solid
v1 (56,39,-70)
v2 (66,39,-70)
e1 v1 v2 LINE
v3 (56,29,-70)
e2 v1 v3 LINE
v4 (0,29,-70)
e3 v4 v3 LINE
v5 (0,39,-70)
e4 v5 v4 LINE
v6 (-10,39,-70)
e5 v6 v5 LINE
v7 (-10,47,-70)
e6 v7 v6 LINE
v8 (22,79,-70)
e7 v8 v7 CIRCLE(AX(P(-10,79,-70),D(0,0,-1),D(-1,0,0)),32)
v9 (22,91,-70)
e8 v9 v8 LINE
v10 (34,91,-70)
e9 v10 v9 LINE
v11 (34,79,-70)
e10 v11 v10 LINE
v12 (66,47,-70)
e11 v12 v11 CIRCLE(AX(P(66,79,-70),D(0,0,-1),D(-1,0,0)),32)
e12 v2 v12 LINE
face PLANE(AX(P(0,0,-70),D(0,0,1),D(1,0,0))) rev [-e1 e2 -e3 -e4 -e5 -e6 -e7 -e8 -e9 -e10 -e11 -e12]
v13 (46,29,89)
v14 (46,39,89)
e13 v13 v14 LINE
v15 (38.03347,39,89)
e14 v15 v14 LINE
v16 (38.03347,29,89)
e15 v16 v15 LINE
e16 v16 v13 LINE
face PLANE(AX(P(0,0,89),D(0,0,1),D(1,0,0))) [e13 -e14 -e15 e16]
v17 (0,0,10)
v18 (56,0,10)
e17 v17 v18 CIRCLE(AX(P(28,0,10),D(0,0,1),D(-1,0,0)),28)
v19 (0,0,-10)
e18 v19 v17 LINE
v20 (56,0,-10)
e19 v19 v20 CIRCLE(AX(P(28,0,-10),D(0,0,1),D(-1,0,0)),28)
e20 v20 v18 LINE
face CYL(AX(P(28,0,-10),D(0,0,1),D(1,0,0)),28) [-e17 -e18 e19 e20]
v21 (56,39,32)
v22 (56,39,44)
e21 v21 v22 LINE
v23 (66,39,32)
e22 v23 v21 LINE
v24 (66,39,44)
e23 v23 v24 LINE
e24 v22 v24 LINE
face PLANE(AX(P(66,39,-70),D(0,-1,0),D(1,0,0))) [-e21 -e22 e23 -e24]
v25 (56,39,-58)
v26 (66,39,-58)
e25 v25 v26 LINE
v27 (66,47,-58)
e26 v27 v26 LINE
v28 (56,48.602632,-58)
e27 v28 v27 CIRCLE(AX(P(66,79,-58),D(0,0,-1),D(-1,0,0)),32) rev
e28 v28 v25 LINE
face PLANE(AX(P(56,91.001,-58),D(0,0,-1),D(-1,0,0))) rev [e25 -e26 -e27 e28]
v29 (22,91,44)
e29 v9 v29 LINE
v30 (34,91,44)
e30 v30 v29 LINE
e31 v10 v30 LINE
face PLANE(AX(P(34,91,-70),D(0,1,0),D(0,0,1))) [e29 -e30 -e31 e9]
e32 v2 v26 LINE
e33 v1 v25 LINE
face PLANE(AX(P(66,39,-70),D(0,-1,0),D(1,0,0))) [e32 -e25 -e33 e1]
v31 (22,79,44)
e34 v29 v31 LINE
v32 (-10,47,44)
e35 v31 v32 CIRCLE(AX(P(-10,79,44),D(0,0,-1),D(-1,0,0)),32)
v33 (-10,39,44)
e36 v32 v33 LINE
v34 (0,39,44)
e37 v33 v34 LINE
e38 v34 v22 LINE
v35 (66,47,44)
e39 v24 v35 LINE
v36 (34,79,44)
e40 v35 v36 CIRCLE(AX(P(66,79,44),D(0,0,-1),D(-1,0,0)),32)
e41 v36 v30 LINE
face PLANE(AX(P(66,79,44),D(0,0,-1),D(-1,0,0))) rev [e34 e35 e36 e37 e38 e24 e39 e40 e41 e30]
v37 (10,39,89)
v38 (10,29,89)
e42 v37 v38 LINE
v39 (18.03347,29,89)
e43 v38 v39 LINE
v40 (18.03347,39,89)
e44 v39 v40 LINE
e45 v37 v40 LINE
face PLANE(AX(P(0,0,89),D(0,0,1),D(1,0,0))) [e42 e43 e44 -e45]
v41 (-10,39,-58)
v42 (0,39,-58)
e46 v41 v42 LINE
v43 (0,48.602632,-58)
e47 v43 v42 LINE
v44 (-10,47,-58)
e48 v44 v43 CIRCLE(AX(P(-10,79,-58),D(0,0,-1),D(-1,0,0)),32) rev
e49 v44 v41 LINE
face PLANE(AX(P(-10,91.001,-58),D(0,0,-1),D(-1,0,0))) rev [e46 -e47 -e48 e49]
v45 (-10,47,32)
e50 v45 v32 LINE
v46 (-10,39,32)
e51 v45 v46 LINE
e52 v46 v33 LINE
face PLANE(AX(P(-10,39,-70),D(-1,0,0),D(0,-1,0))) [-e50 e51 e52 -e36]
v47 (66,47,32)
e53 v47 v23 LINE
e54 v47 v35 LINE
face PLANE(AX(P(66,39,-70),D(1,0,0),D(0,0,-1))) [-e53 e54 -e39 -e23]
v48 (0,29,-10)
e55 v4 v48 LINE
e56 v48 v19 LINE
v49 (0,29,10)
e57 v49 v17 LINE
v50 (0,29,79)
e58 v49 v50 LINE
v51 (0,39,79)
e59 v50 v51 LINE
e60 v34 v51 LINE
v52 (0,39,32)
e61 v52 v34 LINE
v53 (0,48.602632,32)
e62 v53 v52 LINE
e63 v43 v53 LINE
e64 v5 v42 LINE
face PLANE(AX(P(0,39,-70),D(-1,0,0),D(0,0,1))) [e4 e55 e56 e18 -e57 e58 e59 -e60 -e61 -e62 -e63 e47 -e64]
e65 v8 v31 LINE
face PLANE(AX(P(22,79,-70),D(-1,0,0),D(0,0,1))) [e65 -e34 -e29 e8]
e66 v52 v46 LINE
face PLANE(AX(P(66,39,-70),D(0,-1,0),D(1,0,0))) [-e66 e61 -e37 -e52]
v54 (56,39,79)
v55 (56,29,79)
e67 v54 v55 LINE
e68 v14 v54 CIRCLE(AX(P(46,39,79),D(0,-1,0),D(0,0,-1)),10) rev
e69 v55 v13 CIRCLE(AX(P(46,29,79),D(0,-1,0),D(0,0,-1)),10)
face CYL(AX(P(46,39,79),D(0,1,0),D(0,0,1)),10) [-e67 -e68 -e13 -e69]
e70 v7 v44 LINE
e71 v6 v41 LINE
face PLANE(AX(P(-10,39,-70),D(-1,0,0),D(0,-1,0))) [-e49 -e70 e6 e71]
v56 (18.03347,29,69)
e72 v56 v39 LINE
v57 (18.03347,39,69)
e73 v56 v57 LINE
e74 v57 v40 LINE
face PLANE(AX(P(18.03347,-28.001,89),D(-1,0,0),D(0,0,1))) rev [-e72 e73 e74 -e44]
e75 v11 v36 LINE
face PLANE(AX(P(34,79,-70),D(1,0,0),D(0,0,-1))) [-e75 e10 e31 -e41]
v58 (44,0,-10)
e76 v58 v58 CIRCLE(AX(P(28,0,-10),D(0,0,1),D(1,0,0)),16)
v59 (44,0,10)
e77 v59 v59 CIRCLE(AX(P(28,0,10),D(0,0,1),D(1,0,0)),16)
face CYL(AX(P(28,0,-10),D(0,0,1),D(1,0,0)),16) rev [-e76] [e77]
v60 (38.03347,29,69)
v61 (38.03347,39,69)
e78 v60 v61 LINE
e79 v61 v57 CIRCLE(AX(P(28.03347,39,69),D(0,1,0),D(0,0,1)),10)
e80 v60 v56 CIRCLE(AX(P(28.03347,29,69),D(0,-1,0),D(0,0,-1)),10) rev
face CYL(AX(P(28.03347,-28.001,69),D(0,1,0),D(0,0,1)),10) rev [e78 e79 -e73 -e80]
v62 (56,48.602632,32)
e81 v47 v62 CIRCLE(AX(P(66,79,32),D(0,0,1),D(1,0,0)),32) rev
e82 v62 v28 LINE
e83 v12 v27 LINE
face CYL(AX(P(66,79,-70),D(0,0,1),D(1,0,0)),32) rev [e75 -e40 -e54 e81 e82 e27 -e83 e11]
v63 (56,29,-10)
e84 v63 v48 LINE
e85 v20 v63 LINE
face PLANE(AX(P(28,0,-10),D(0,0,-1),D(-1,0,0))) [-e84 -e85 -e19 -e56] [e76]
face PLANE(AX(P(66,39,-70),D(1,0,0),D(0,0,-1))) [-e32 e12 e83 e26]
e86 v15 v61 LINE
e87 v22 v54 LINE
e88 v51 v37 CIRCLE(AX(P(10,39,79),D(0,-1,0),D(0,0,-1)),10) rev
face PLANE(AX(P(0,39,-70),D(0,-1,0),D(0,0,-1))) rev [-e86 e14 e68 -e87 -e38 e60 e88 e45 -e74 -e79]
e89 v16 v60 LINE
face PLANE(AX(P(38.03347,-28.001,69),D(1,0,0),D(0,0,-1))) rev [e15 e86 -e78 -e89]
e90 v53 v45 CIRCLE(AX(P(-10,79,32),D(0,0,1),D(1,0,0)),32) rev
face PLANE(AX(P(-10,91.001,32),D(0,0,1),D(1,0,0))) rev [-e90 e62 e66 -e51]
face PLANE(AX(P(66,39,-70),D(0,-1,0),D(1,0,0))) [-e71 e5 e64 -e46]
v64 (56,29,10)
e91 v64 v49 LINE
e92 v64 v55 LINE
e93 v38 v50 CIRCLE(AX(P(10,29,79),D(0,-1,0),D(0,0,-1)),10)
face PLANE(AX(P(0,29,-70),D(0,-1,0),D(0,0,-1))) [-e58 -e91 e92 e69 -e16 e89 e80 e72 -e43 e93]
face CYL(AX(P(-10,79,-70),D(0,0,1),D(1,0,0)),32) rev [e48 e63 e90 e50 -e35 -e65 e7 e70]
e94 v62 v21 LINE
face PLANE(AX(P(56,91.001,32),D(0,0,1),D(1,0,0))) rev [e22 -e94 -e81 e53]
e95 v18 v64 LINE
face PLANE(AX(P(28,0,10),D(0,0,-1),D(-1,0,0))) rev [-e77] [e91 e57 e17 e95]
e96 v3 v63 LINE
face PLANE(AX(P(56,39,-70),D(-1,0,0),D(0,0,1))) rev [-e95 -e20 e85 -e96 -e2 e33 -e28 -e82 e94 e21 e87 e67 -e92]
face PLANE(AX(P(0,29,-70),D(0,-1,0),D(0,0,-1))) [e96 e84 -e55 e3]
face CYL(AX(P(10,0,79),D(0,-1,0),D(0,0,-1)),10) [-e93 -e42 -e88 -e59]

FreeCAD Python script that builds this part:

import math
import FreeCAD as App
import Part
import Sketcher
from FreeCAD import Vector


def edges_at(feature, points):
    """Names of the edges that pass closest to the given points."""
    edges = feature.Shape.Edges
    near = lambda p: min(range(len(edges)), key=lambda i: edges[i].distToShape(Part.Vertex(*p))[0])
    return sorted({f"Edge{near(p) + 1}" for p in points})

doc = App.newDocument("Part")
body = doc.addObject("PartDesign::Body", "Body")

# Sketch on XY plane
sketch1 = doc.addObject("Sketcher::SketchObject", "Sketch")
body.addObject(sketch1)
sketch1.AttachmentSupport = (doc.XY_Plane, [""])
sketch1.MapMode = "FlatFace"
sketch1.addGeometry([
    Part.LineSegment(Vector(0, 39, 0), Vector(0, 29, 0)),
    Part.LineSegment(Vector(0, 29, 0), Vector(56, 29, 0)),
    Part.LineSegment(Vector(56, 29, 0), Vector(56, 39, 0)),
    Part.LineSegment(Vector(56, 39, 0), Vector(0, 39, 0)),
], False)
sketch1.addConstraint([
    Sketcher.Constraint("Coincident", 0, 2, 1, 1),
    Sketcher.Constraint("Coincident", 1, 2, 2, 1),
    Sketcher.Constraint("Coincident", 2, 2, 3, 1),
    Sketcher.Constraint("Coincident", 3, 2, 0, 1),
    Sketcher.Constraint("Vertical", 0),
    Sketcher.Constraint("Horizontal", 1),
    Sketcher.Constraint("Vertical", 2),
    Sketcher.Constraint("Horizontal", 3),
    Sketcher.Constraint("PointOnObject", 0, 2, -2),
    Sketcher.Constraint("DistanceX", 1, 1, 1, 2, 56.0),
    Sketcher.Constraint("DistanceY", 0, 2, 0, 1, 10.0),
    Sketcher.Constraint("DistanceY", -1, 1, 0, 2, 29.0),
])
pad1 = doc.addObject("PartDesign::Pad", "Pad")
body.addObject(pad1)
pad1.Profile = sketch1
pad1.Type = "TwoLengths"
pad1.Length = 89
pad1.Length2 = 70

# Sketch on XY plane
sketch2 = doc.addObject("Sketcher::SketchObject", "Sketch001")
body.addObject(sketch2)
sketch2.AttachmentSupport = (doc.XY_Plane, [""])
sketch2.MapMode = "FlatFace"
sketch2.addGeometry([
    Part.LineSegment(Vector(22, 91, 0), Vector(22, 79, 0)),  # 0
    Part.ArcOfCircle(Part.Circle(Vector(-10, 79, 0), Vector(0, 0, 1), 32), math.radians(-90), math.radians(0)),  # 1
    Part.LineSegment(Vector(-10, 47, 0), Vector(-10, 39, 0)),  # 2
    Part.LineSegment(Vector(-10, 39, 0), Vector(66, 39, 0)),  # 3
    Part.LineSegment(Vector(66, 39, 0), Vector(66, 47, 0)),  # 4
    Part.ArcOfCircle(Part.Circle(Vector(66, 79, 0), Vector(0, 0, 1), 32), math.radians(180), math.radians(270)),  # 5
    Part.LineSegment(Vector(34, 79, 0), Vector(34, 91, 0)),  # 6
    Part.LineSegment(Vector(34, 91, 0), Vector(22, 91, 0)),  # 7
], False)
sketch2.addConstraint([
    Sketcher.Constraint("Tangent", 0, 2, 1, 2),
    Sketcher.Constraint("Coincident", 1, 1, 2, 1),
    Sketcher.Constraint("Coincident", 2, 2, 3, 1),
    Sketcher.Constraint("Coincident", 3, 2, 4, 1),
    Sketcher.Constraint("Coincident", 4, 2, 5, 2),
    Sketcher.Constraint("Tangent", 5, 1, 6, 1),
    Sketcher.Constraint("Coincident", 6, 2, 7, 1),
    Sketcher.Constraint("Coincident", 7, 2, 0, 1),
    Sketcher.Constraint("Vertical", 0),
    Sketcher.Constraint("Vertical", 2),
    Sketcher.Constraint("Horizontal", 3),
    Sketcher.Constraint("Vertical", 4),
    Sketcher.Constraint("Vertical", 6),
    Sketcher.Constraint("Horizontal", 7),
    Sketcher.Constraint("Equal", 1, 5),
    Sketcher.Constraint("Horizontal", 1, 3, 5, 3),
    Sketcher.Constraint("Vertical", 5, 3, 3, 2),
    Sketcher.Constraint("Equal", 7, 0),
    Sketcher.Constraint("Radius", 1, 32.0),
    Sketcher.Constraint("DistanceX", 3, 1, 3, 2, 76.0),
    Sketcher.Constraint("DistanceX", 7, 2, 7, 1, 12.0),
    Sketcher.Constraint("DistanceY", 2, 2, 2, 1, 8.0),
    Sketcher.Constraint("DistanceX", 1, 3, -1, 1, 10.0),
    Sketcher.Constraint("DistanceY", -1, 1, 1, 3, 79.0),
])
pad2 = doc.addObject("PartDesign::Pad", "Pad001")
body.addObject(pad2)
pad2.Profile = sketch2
pad2.Type = "TwoLengths"
pad2.Length = 44
pad2.Length2 = 70

# Sketch on XY plane
sketch3 = doc.addObject("Sketcher::SketchObject", "Sketch002")
body.addObject(sketch3)
sketch3.AttachmentSupport = (doc.XY_Plane, [""])
sketch3.MapMode = "FlatFace"
sketch3.addGeometry([
    Part.LineSegment(Vector(0, 29, 0), Vector(0, 0, 0)),  # 0
    Part.ArcOfCircle(Part.Circle(Vector(28, 0, 0), Vector(0, 0, 1), 28), math.radians(180), math.radians(360)),  # 1
    Part.LineSegment(Vector(56, 0, 0), Vector(56, 29, 0)),  # 2
    Part.LineSegment(Vector(56, 29, 0), Vector(0, 29, 0)),  # 3
    Part.Circle(Vector(28, 0, 0), Vector(0, 0, 1), 16),  # 4
], False)
sketch3.addConstraint([
    Sketcher.Constraint("Tangent", 0, 2, 1, 1),
    Sketcher.Constraint("Tangent", 1, 2, 2, 1),
    Sketcher.Constraint("Coincident", 2, 2, 3, 1),
    Sketcher.Constraint("Coincident", 3, 2, 0, 1),
    Sketcher.Constraint("Vertical", 0),
    Sketcher.Constraint("Vertical", 2),
    Sketcher.Constraint("Horizontal", 3),
    Sketcher.Constraint("Coincident", 0, 2, -1, 1),
    Sketcher.Constraint("Coincident", 4, 3, 1, 3),
    Sketcher.Constraint("Diameter", 4, 32.0),
    Sketcher.Constraint("Radius", 1, 28.0),
    Sketcher.Constraint("DistanceY", 0, 2, 0, 1, 29.0),
])
pad3 = doc.addObject("PartDesign::Pad", "Pad002")
body.addObject(pad3)
pad3.Profile = sketch3
pad3.Type = "TwoLengths"
pad3.Length = 10
pad3.Length2 = 10

# Sketch on XZ plane
sketch4 = doc.addObject("Sketcher::SketchObject", "Sketch003")
body.addObject(sketch4)
sketch4.AttachmentSupport = (doc.XZ_Plane, [""])
sketch4.MapMode = "FlatFace"
sketch4.AttachmentOffset = App.Placement(Vector(0, 0, -39), App.Rotation())
sketch4.addGeometry([
    Part.LineSegment(Vector(38.03347, 89, 0), Vector(38.03347, 69, 0)),
    Part.ArcOfCircle(Part.Circle(Vector(28.03347, 69, 0), Vector(0, 0, 1), 10), math.radians(180), math.radians(360)),
    Part.LineSegment(Vector(18.03347, 69, 0), Vector(18.03347, 89, 0)),
    Part.LineSegment(Vector(18.03347, 89, 0), Vector(38.03347, 89, 0)),
], False)
sketch4.addConstraint([
    Sketcher.Constraint("Tangent", 0, 2, 1, 2),
    Sketcher.Constraint("Tangent", 1, 1, 2, 1),
    Sketcher.Constraint("Coincident", 2, 2, 3, 1),
    Sketcher.Constraint("Coincident", 3, 2, 0, 1),
    Sketcher.Constraint("Vertical", 0),
    Sketcher.Constraint("Vertical", 2),
    Sketcher.Constraint("Horizontal", 3),
    Sketcher.Constraint("Equal", 3, 0),
    Sketcher.Constraint("Radius", 1, 10.0),
    Sketcher.Constraint("DistanceY", -1, 1, 1, 3, 69.0),
    Sketcher.Constraint("DistanceX", -1, 1, 1, 3, 28.03347),
])
pocket1 = doc.addObject("PartDesign::Pocket", "Pocket")
body.addObject(pocket1)
pocket1.Profile = sketch4
pocket1.Type = "UpToFirst"
pocket1.Reversed = True
doc.recompute()

fillet = doc.addObject("PartDesign::Fillet", "Fillet")
body.addObject(fillet)
fillet.Base = (pocket1, edges_at(pocket1, [(56, 34, 89), (0, 34, 89)]))
fillet.Radius = 10

# Sketch on XZ plane
sketch5 = doc.addObject("Sketcher::SketchObject", "Sketch004")
body.addObject(sketch5)
sketch5.AttachmentSupport = (doc.XZ_Plane, [""])
sketch5.MapMode = "FlatFace"
sketch5.AttachmentOffset = App.Placement(Vector(0, 0, -39), App.Rotation())
sketch5.addGeometry([
    Part.LineSegment(Vector(-10, 32, 0), Vector(-10, -58, 0)),
    Part.LineSegment(Vector(-10, -58, 0), Vector(0, -58, 0)),
    Part.LineSegment(Vector(0, -58, 0), Vector(0, 32, 0)),
    Part.LineSegment(Vector(0, 32, 0), Vector(-10, 32, 0)),
], False)
sketch5.addConstraint([
    Sketcher.Constraint("Coincident", 0, 2, 1, 1),
    Sketcher.Constraint("Coincident", 1, 2, 2, 1),
    Sketcher.Constraint("Coincident", 2, 2, 3, 1),
    Sketcher.Constraint("Coincident", 3, 2, 0, 1),
    Sketcher.Constraint("Vertical", 0),
    Sketcher.Constraint("Horizontal", 1),
    Sketcher.Constraint("Vertical", 2),
    Sketcher.Constraint("Horizontal", 3),
    Sketcher.Constraint("PointOnObject", 1, 2, -2),
    Sketcher.Constraint("DistanceX", 1, 1, 1, 2, 10.0),
    Sketcher.Constraint("DistanceY", 0, 2, 0, 1, 90.0),
    Sketcher.Constraint("DistanceY", 0, 2, -1, 1, 58.0),
])
pocket2 = doc.addObject("PartDesign::Pocket", "Pocket001")
body.addObject(pocket2)
pocket2.Profile = sketch5
pocket2.Type = "UpToFirst"

# Sketch on XZ plane
sketch6 = doc.addObject("Sketcher::SketchObject", "Sketch005")
body.addObject(sketch6)
sketch6.AttachmentSupport = (doc.XZ_Plane, [""])
sketch6.MapMode = "FlatFace"
sketch6.AttachmentOffset = App.Placement(Vector(0, 0, -39), App.Rotation())
sketch6.addGeometry([
    Part.LineSegment(Vector(56, 32, 0), Vector(56, -58, 0)),
    Part.LineSegment(Vector(56, -58, 0), Vector(66, -58, 0)),
    Part.LineSegment(Vector(66, -58, 0), Vector(66, 32, 0)),
    Part.LineSegment(Vector(66, 32, 0), Vector(56, 32, 0)),
], False)
sketch6.addConstraint([
    Sketcher.Constraint("Coincident", 0, 2, 1, 1),
    Sketcher.Constraint("Coincident", 1, 2, 2, 1),
    Sketcher.Constraint("Coincident", 2, 2, 3, 1),
    Sketcher.Constraint("Coincident", 3, 2, 0, 1),
    Sketcher.Constraint("Vertical", 0),
    Sketcher.Constraint("Horizontal", 1),
    Sketcher.Constraint("Vertical", 2),
    Sketcher.Constraint("Horizontal", 3),
    Sketcher.Constraint("DistanceX", 1, 1, 1, 2, 10.0),
    Sketcher.Constraint("DistanceY", 0, 2, 0, 1, 90.0),
    Sketcher.Constraint("DistanceX", -1, 1, 0, 2, 56.0),
    Sketcher.Constraint("DistanceY", 0, 2, -1, 1, 58.0),
])
pocket3 = doc.addObject("PartDesign::Pocket", "Pocket002")
body.addObject(pocket3)
pocket3.Profile = sketch6
pocket3.Type = "UpToFirst"

doc.recompute()
